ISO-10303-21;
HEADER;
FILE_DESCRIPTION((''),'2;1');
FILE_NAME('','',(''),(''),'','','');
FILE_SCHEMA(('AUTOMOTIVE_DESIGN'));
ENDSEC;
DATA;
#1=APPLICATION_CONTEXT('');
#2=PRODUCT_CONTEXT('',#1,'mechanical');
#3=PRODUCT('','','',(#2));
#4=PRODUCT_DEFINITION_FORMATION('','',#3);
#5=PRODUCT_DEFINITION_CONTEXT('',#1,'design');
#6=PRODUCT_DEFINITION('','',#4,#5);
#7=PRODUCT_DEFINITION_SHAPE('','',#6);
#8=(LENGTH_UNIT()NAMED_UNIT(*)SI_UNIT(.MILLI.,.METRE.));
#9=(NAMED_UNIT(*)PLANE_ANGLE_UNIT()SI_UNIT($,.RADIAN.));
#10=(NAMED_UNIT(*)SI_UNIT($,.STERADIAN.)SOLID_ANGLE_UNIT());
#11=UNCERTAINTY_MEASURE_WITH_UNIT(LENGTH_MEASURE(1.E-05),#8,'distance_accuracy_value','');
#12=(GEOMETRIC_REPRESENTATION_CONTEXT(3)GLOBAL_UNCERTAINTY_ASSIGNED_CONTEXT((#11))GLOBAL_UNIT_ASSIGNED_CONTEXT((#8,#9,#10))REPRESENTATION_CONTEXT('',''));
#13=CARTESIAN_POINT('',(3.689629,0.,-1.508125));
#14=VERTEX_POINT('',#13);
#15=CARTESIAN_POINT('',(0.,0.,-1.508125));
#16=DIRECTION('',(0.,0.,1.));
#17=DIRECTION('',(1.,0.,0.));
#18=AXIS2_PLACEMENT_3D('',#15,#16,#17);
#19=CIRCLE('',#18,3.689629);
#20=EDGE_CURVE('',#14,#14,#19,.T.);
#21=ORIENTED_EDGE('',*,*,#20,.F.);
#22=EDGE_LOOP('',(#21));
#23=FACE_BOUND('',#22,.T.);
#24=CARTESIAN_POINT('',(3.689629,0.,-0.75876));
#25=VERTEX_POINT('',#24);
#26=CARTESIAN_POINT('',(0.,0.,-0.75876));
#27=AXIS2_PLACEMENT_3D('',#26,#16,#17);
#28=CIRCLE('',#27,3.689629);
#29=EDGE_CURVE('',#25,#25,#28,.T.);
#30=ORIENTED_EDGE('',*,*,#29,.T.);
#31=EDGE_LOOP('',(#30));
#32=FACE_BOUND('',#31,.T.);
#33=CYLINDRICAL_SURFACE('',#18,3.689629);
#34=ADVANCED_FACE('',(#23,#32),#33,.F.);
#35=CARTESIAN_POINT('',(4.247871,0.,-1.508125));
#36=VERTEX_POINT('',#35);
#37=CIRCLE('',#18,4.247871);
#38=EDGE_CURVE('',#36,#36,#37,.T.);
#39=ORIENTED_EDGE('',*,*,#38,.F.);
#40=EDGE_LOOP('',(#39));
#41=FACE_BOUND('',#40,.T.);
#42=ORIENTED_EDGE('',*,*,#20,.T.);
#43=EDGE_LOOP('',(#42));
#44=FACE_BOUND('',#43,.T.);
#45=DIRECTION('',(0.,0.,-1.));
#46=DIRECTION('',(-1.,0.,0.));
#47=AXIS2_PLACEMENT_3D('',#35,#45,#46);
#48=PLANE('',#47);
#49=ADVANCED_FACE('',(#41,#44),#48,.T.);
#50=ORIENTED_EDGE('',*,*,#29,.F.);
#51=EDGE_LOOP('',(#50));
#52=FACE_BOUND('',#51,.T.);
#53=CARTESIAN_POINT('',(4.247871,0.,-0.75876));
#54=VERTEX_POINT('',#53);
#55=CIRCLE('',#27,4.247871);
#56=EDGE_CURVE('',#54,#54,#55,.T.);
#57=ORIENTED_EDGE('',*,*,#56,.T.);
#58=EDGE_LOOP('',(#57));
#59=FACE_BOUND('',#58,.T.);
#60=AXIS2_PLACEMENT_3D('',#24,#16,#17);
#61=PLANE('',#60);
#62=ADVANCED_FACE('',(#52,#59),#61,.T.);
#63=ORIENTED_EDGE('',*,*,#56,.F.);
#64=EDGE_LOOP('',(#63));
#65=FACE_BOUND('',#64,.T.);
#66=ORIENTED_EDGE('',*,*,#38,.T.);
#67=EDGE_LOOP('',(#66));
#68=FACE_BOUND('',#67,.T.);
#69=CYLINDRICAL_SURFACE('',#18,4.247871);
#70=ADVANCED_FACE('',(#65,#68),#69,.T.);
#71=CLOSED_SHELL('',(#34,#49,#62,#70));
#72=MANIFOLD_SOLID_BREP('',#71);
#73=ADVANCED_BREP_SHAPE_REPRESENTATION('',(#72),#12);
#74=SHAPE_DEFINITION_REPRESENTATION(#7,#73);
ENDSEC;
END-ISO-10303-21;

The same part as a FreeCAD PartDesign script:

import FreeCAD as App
import Part
import Sketcher
from FreeCAD import Vector

doc = App.newDocument("Part")
body = doc.addObject("PartDesign::Body", "Body")

# Sketch on XZ plane
sketch1 = body.newObject("Sketcher::SketchObject", "Sketch")
sketch1.AttachmentSupport = (doc.getObject("XZ_Plane"), [""])
sketch1.MapMode = "FlatFace"
sketch1.addGeometry([
    Part.LineSegment(Vector(3.689629, -1.508125, 0), Vector(3.689629, -0.75876, 0)),
    Part.LineSegment(Vector(3.689629, -0.75876, 0), Vector(4.247871, -0.75876, 0)),
    Part.LineSegment(Vector(4.247871, -0.75876, 0), Vector(4.247871, -1.508125, 0)),
    Part.LineSegment(Vector(4.247871, -1.508125, 0), Vector(3.689629, -1.508125, 0)),
], False)
sketch1.addConstraint([
    Sketcher.Constraint("Coincident", 0, 2, 1, 1),
    Sketcher.Constraint("Coincident", 1, 2, 2, 1),
    Sketcher.Constraint("Coincident", 2, 2, 3, 1),
    Sketcher.Constraint("Coincident", 3, 2, 0, 1),
    Sketcher.Constraint("Vertical", 0),
    Sketcher.Constraint("Horizontal", 1),
    Sketcher.Constraint("Vertical", 2),
    Sketcher.Constraint("Horizontal", 3),
    Sketcher.Constraint("DistanceX", 1, 1, 1, 2, 0.558242),
    Sketcher.Constraint("DistanceY", 0, 1, 0, 2, 0.749365),
    Sketcher.Constraint("DistanceX", -1, 1, 0, 2, 3.689629),
    Sketcher.Constraint("DistanceY", 0, 2, -1, 1, 0.75876),
])
revolution = body.newObject("PartDesign::Revolution", "Revolution")
revolution.Profile = sketch1
revolution.ReferenceAxis = (sketch1, ["V_Axis"])
revolution.Angle = 360

doc.recompute()
